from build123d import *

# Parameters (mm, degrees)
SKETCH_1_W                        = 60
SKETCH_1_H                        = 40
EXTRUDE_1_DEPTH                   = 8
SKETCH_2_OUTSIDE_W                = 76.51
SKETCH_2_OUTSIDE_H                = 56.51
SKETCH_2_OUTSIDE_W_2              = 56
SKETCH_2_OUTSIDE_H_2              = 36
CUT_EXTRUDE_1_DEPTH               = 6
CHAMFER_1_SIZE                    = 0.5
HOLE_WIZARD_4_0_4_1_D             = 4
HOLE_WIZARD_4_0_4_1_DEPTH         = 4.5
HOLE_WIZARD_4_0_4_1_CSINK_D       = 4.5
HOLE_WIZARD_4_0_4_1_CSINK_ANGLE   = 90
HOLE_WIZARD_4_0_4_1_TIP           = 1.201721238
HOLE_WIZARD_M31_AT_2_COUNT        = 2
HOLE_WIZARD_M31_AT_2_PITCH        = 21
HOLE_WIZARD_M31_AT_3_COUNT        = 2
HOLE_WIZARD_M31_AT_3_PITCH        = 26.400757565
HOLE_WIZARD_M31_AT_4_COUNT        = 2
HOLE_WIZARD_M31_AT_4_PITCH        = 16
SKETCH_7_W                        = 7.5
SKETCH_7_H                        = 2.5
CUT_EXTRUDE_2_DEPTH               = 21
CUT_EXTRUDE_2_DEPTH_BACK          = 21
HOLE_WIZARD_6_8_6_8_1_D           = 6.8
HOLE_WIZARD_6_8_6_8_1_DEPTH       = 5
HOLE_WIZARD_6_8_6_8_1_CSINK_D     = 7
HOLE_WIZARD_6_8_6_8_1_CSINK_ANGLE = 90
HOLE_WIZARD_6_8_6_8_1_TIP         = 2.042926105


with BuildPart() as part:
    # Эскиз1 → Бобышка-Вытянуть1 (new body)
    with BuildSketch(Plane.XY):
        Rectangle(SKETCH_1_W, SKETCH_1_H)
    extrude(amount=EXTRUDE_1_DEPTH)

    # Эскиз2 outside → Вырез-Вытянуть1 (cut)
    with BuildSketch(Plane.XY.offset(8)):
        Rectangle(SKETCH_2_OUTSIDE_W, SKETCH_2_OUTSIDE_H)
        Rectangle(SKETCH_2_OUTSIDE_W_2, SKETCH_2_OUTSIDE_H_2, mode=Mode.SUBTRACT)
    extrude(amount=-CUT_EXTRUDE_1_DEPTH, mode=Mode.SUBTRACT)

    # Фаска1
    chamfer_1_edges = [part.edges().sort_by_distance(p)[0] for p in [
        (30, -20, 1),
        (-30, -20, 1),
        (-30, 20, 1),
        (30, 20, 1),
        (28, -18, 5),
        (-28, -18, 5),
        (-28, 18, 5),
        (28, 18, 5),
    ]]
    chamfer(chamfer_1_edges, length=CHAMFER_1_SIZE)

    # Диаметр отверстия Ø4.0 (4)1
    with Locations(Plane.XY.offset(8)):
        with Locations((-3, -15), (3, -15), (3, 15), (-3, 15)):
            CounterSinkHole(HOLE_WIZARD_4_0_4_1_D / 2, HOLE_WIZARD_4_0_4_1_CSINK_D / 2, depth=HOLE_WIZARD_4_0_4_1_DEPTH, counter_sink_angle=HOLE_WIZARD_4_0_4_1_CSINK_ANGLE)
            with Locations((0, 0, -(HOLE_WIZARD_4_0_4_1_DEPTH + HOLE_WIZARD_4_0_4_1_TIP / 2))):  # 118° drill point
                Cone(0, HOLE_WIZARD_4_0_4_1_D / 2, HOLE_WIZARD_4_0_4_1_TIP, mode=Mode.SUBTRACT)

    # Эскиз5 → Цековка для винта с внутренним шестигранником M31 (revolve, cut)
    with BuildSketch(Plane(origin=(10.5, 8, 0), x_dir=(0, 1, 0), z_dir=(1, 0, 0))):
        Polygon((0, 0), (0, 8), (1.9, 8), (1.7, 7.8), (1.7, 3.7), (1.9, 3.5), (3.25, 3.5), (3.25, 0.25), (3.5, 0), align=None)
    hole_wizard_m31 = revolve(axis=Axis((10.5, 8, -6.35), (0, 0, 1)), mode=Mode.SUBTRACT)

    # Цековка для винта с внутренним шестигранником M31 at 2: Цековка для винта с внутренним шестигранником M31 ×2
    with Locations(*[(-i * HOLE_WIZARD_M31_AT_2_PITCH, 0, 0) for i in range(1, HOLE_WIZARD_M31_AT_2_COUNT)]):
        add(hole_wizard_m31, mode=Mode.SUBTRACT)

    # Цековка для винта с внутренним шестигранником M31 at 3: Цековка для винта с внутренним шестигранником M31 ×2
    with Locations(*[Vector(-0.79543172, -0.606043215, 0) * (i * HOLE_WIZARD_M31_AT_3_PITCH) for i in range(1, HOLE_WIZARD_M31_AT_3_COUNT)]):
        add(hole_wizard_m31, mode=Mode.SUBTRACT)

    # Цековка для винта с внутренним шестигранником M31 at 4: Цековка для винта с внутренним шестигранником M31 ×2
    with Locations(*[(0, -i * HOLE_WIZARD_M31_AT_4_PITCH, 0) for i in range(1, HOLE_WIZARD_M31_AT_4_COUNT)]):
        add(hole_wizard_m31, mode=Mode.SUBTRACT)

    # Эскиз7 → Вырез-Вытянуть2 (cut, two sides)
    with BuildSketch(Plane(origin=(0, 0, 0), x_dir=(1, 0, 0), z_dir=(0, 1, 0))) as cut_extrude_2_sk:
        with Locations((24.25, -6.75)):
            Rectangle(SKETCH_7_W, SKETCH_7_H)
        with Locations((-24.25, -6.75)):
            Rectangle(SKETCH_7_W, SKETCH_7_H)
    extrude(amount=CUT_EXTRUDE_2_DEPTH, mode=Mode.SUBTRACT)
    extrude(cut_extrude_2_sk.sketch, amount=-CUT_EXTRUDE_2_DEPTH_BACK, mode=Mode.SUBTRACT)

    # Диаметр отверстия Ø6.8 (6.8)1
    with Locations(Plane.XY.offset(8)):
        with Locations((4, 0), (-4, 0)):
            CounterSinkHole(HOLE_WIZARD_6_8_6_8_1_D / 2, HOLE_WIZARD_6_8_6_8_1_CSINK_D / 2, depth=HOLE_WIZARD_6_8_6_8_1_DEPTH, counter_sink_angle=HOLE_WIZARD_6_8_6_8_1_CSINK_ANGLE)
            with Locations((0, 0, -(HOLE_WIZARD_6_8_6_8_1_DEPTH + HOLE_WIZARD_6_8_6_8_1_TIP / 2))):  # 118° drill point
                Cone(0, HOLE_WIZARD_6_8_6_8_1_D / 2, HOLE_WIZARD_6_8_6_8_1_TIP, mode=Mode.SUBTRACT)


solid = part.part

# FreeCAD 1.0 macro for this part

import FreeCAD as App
import Part
import Sketcher
from FreeCAD import Vector
Q = App.Units.Quantity


def edges_at(feature, points):
    """Names of the edges that pass closest to the given points."""
    edges = feature.Shape.Edges
    near = lambda p: min(range(len(edges)), key=lambda i: edges[i].distToShape(Part.Vertex(*p))[0])
    return sorted({f"Edge{near(p) + 1}" for p in points})

doc = App.newDocument("Part")
body = doc.addObject("PartDesign::Body", "Body")

# Sketch on XY plane
sketch1 = body.newObject("Sketcher::SketchObject", "Sketch")
sketch1.AttachmentSupport = (doc.getObject("XY_Plane"), [""])
sketch1.MapMode = "FlatFace"
sketch1.addGeometry(Part.LineSegment(Vector(-30, 20, 0), Vector(-30, -20, 0)), False)
sketch1.addGeometry(Part.LineSegment(Vector(-30, -20, 0), Vector(30, -20, 0)), False)
sketch1.addGeometry(Part.LineSegment(Vector(30, -20, 0), Vector(30, 20, 0)), False)
sketch1.addGeometry(Part.LineSegment(Vector(30, 20, 0), Vector(-30, 20, 0)), False)
sketch1.addConstraint(Sketcher.Constraint("Coincident", 0, 2, 1, 1))
sketch1.addConstraint(Sketcher.Constraint("Coincident", 1, 2, 2, 1))
sketch1.addConstraint(Sketcher.Constraint("Coincident", 2, 2, 3, 1))
sketch1.addConstraint(Sketcher.Constraint("Coincident", 3, 2, 0, 1))
sketch1.addConstraint(Sketcher.Constraint("Vertical", 0))
sketch1.addConstraint(Sketcher.Constraint("Horizontal", 1))
sketch1.addConstraint(Sketcher.Constraint("Vertical", 2))
sketch1.addConstraint(Sketcher.Constraint("Horizontal", 3))
sketch1.addConstraint(Sketcher.Constraint("Symmetric", 0, 2, 2, 2, -1, 1))
sketch1.addConstraint(Sketcher.Constraint("DistanceX", 1, 1, 1, 2, Q("60 mm")))
sketch1.addConstraint(Sketcher.Constraint("DistanceY", 0, 2, 0, 1, Q("40 mm")))
pad1 = body.newObject("PartDesign::Pad", "Pad")
pad1.Profile = sketch1
pad1.Length = 8

# Sketch on XY plane
sketch2 = body.newObject("Sketcher::SketchObject", "Sketch001")
sketch2.AttachmentSupport = (doc.getObject("XY_Plane"), [""])
sketch2.MapMode = "FlatFace"
sketch2.AttachmentOffset = App.Placement(Vector(0, 0, 8), App.Rotation())
sketch2.addGeometry(Part.LineSegment(Vector(-38.255, 28.255, 0), Vector(-38.255, -28.255, 0)), False)
sketch2.addGeometry(Part.LineSegment(Vector(-38.255, -28.255, 0), Vector(38.255, -28.255, 0)), False)
sketch2.addGeometry(Part.LineSegment(Vector(38.255, -28.255, 0), Vector(38.255, 28.255, 0)), False)
sketch2.addGeometry(Part.LineSegment(Vector(38.255, 28.255, 0), Vector(-38.255, 28.255, 0)), False)
sketch2.addGeometry(Part.LineSegment(Vector(28, -18, 0), Vector(-28, -18, 0)), False)
sketch2.addGeometry(Part.LineSegment(Vector(-28, -18, 0), Vector(-28, 18, 0)), False)
sketch2.addGeometry(Part.LineSegment(Vector(-28, 18, 0), Vector(28, 18, 0)), False)
sketch2.addGeometry(Part.LineSegment(Vector(28, 18, 0), Vector(28, -18, 0)), False)
sketch2.addConstraint(Sketcher.Constraint("Coincident", 0, 2, 1, 1))
sketch2.addConstraint(Sketcher.Constraint("Coincident", 1, 2, 2, 1))
sketch2.addConstraint(Sketcher.Constraint("Coincident", 2, 2, 3, 1))
sketch2.addConstraint(Sketcher.Constraint("Coincident", 3, 2, 0, 1))
sketch2.addConstraint(Sketcher.Constraint("Coincident", 4, 2, 5, 1))
sketch2.addConstraint(Sketcher.Constraint("Coincident", 5, 2, 6, 1))
sketch2.addConstraint(Sketcher.Constraint("Coincident", 6, 2, 7, 1))
sketch2.addConstraint(Sketcher.Constraint("Coincident", 7, 2, 4, 1))
sketch2.addConstraint(Sketcher.Constraint("Vertical", 0))
sketch2.addConstraint(Sketcher.Constraint("Horizontal", 1))
sketch2.addConstraint(Sketcher.Constraint("Vertical", 2))
sketch2.addConstraint(Sketcher.Constraint("Horizontal", 3))
sketch2.addConstraint(Sketcher.Constraint("Horizontal", 4))
sketch2.addConstraint(Sketcher.Constraint("Vertical", 5))
sketch2.addConstraint(Sketcher.Constraint("Horizontal", 6))
sketch2.addConstraint(Sketcher.Constraint("Vertical", 7))
sketch2.addConstraint(Sketcher.Constraint("Symmetric", 0, 2, 2, 2, -1, 1))
sketch2.addConstraint(Sketcher.Constraint("Symmetric", 4, 2, 6, 2, -1, 1))
sketch2.addConstraint(Sketcher.Constraint("DistanceX", 4, 2, 4, 1, Q("56 mm")))
sketch2.addConstraint(Sketcher.Constraint("DistanceY", 5, 1, 5, 2, Q("36 mm")))
sketch2.addConstraint(Sketcher.Constraint("DistanceX", 1, 1, 1, 2, Q("76.51 mm")))
sketch2.addConstraint(Sketcher.Constraint("DistanceY", 0, 2, 0, 1, Q("56.51 mm")))
pocket1 = body.newObject("PartDesign::Pocket", "Pocket")
pocket1.Profile = sketch2
pocket1.Length = 6
doc.recompute()

chamfer = body.newObject("PartDesign::Chamfer", "Chamfer")
chamfer.Base = (pocket1, edges_at(pocket1, [
    (30, -20, 1),
    (-30, -20, 1),
    (-30, 20, 1),
    (30, 20, 1),
    (28, -18, 5),
    (-28, -18, 5),
    (-28, 18, 5),
    (28, 18, 5),
]))
chamfer.Size = 0.5

# Sketch on XY plane
sketch3 = body.newObject("Sketcher::SketchObject", "Sketch002")
sketch3.AttachmentSupport = (doc.getObject("XY_Plane"), [""])
sketch3.MapMode = "FlatFace"
sketch3.AttachmentOffset = App.Placement(Vector(0, 0, 8), App.Rotation())
sketch3.addGeometry(Part.Circle(Vector(-3, -15, 0), Vector(0, 0, 1), 2), False)
sketch3.addGeometry(Part.Circle(Vector(3, -15, 0), Vector(0, 0, 1), 2), False)
sketch3.addGeometry(Part.Circle(Vector(3, 15, 0), Vector(0, 0, 1), 2), False)
sketch3.addGeometry(Part.Circle(Vector(-3, 15, 0), Vector(0, 0, 1), 2), False)
sketch3.addConstraint(Sketcher.Constraint("Equal", 0, 1))
sketch3.addConstraint(Sketcher.Constraint("Equal", 1, 2))
sketch3.addConstraint(Sketcher.Constraint("Equal", 2, 3))
sketch3.addConstraint(Sketcher.Constraint("Symmetric", 0, 3, 2, 3, -1, 1))
sketch3.addConstraint(Sketcher.Constraint("Symmetric", 1, 3, 3, 3, -1, 1))
sketch3.addConstraint(Sketcher.Constraint("Symmetric", 0, 3, 1, 3, -2))
sketch3.addConstraint(Sketcher.Constraint("Diameter", 0, Q("4 mm")))
sketch3.addConstraint(Sketcher.Constraint("DistanceX", 0, 3, -1, 1, Q("3 mm")))
sketch3.addConstraint(Sketcher.Constraint("DistanceY", 0, 3, -1, 1, Q("15 mm")))
doc.recompute()
hole = body.newObject("PartDesign::Hole", "Hole")
hole.Profile = sketch3
hole.ThreadType = "None"
hole.Diameter = 4
hole.DepthType = "Dimension"
hole.Depth = 4.5
hole.DrillPoint = "Angled"
hole.DrillPointAngle = 118
hole.HoleCutType = "Countersink"
hole.HoleCutDiameter = 4.5
hole.HoleCutCountersinkAngle = 90

# Sketch on YZ plane
sketch4 = body.newObject("Sketcher::SketchObject", "Sketch003")
sketch4.AttachmentSupport = (doc.getObject("YZ_Plane"), [""])
sketch4.MapMode = "FlatFace"
sketch4.AttachmentOffset = App.Placement(Vector(0, 0, 10.5), App.Rotation())
sketch4.addGeometry(Part.LineSegment(Vector(8, 8, 0), Vector(8, 0, 0)), False)
sketch4.addGeometry(Part.LineSegment(Vector(8, 0, 0), Vector(11.5, 0, 0)), False)
sketch4.addGeometry(Part.LineSegment(Vector(11.5, 0, 0), Vector(11.25, 0.25, 0)), False)
sketch4.addGeometry(Part.LineSegment(Vector(11.25, 0.25, 0), Vector(11.25, 3.5, 0)), False)
sketch4.addGeometry(Part.LineSegment(Vector(11.25, 3.5, 0), Vector(9.9, 3.5, 0)), False)
sketch4.addGeometry(Part.LineSegment(Vector(9.9, 3.5, 0), Vector(9.7, 3.7, 0)), False)
sketch4.addGeometry(Part.LineSegment(Vector(9.7, 3.7, 0), Vector(9.7, 7.8, 0)), False)
sketch4.addGeometry(Part.LineSegment(Vector(9.7, 7.8, 0), Vector(9.9, 8, 0)), False)
sketch4.addGeometry(Part.LineSegment(Vector(9.9, 8, 0), Vector(8, 8, 0)), False)
sketch4.addGeometry(Part.LineSegment(Vector(8, 0, 0), Vector(8, 8, 0)), True)  # axis
sketch4.addConstraint(Sketcher.Constraint("Coincident", 0, 2, 1, 1))
sketch4.addConstraint(Sketcher.Constraint("Coincident", 1, 2, 2, 1))
sketch4.addConstraint(Sketcher.Constraint("Coincident", 2, 2, 3, 1))
sketch4.addConstraint(Sketcher.Constraint("Coincident", 3, 2, 4, 1))
sketch4.addConstraint(Sketcher.Constraint("Coincident", 4, 2, 5, 1))
sketch4.addConstraint(Sketcher.Constraint("Coincident", 5, 2, 6, 1))
sketch4.addConstraint(Sketcher.Constraint("Coincident", 6, 2, 7, 1))
sketch4.addConstraint(Sketcher.Constraint("Coincident", 7, 2, 8, 1))
sketch4.addConstraint(Sketcher.Constraint("Coincident", 8, 2, 0, 1))
sketch4.addConstraint(Sketcher.Constraint("Vertical", 0))
sketch4.addConstraint(Sketcher.Constraint("Horizontal", 1))
sketch4.addConstraint(Sketcher.Constraint("Vertical", 3))
sketch4.addConstraint(Sketcher.Constraint("Horizontal", 4))
sketch4.addConstraint(Sketcher.Constraint("Vertical", 6))
sketch4.addConstraint(Sketcher.Constraint("Horizontal", 8))
sketch4.addConstraint(Sketcher.Constraint("Vertical", 9))
sketch4.addConstraint(Sketcher.Constraint("Coincident", 9, 1, 0, 2))
sketch4.addConstraint(Sketcher.Constraint("PointOnObject", 0, 2, -1))
sketch4.addConstraint(Sketcher.Constraint("Parallel", 2, 5))
sketch4.addConstraint(Sketcher.Constraint("Perpendicular", 5, 7))
sketch4.addConstraint(Sketcher.Constraint("Horizontal", 7, 2, 9, 2))
sketch4.addConstraint(Sketcher.Constraint("Vertical", 4, 2, 7, 2))
sketch4.addConstraint(Sketcher.Constraint("Equal", 5, 7))
sketch4.addConstraint(Sketcher.Constraint("DistanceY", 0, 2, 0, 1, Q("8 mm")))
sketch4.addConstraint(Sketcher.Constraint("DistanceX", 1, 1, 1, 2, Q("3.5 mm")))
sketch4.addConstraint(Sketcher.Constraint("DistanceX", 8, 2, 8, 1, Q("1.9 mm")))
sketch4.addConstraint(Sketcher.Constraint("DistanceY", 6, 1, 6, 2, Q("4.1 mm")))
sketch4.addConstraint(Sketcher.Constraint("DistanceX", -1, 1, 0, 2, Q("8 mm")))
sketch4.addConstraint(Sketcher.Constraint("DistanceX", 4, 2, 4, 1, Q("1.35 mm")))
sketch4.addConstraint(Sketcher.Constraint("DistanceY", 3, 1, 3, 2, Q("3.25 mm")))
groove = body.newObject("PartDesign::Groove", "Groove")
groove.Profile = sketch4
groove.ReferenceAxis = (sketch4, ["Axis0"])
groove.Angle = 360
doc.recompute()

linearpattern = body.newObject("PartDesign::LinearPattern", "LinearPattern")
linearpattern.Originals = [groove]
linearpattern.Direction = (doc.getObject("X_Axis"), [""])
linearpattern.Mode = "offset"
linearpattern.Offset = 21
linearpattern.Occurrences = 2
linearpattern.Reversed = True
body.Tip = linearpattern
doc.recompute()

datumline = body.newObject("PartDesign::Line", "DatumLine")
datumline.Placement = App.Placement(Vector(0, 0, 0), App.Rotation(Vector(0, 0, 1), Vector(-0.79543172, -0.606043215, 0)))
linearpattern2 = body.newObject("PartDesign::LinearPattern", "LinearPattern001")
linearpattern2.Originals = [groove]
linearpattern2.Direction = (datumline, [""])
linearpattern2.Mode = "offset"
linearpattern2.Offset = 26.400758
linearpattern2.Occurrences = 2
body.Tip = linearpattern2
doc.recompute()

linearpattern3 = body.newObject("PartDesign::LinearPattern", "LinearPattern002")
linearpattern3.Originals = [groove]
linearpattern3.Direction = (doc.getObject("Y_Axis"), [""])
linearpattern3.Mode = "offset"
linearpattern3.Offset = 16
linearpattern3.Occurrences = 2
linearpattern3.Reversed = True
body.Tip = linearpattern3

# Sketch on XZ plane
sketch5 = body.newObject("Sketcher::SketchObject", "Sketch004")
sketch5.AttachmentSupport = (doc.getObject("XZ_Plane"), [""])
sketch5.MapMode = "FlatFace"
sketch5.addGeometry(Part.LineSegment(Vector(20.5, 5.5, 0), Vector(20.5, 8, 0)), False)
sketch5.addGeometry(Part.LineSegment(Vector(20.5, 8, 0), Vector(28, 8, 0)), False)
sketch5.addGeometry(Part.LineSegment(Vector(28, 8, 0), Vector(28, 5.5, 0)), False)
sketch5.addGeometry(Part.LineSegment(Vector(28, 5.5, 0), Vector(20.5, 5.5, 0)), False)
sketch5.addGeometry(Part.LineSegment(Vector(-28, 5.5, 0), Vector(-28, 8, 0)), False)
sketch5.addGeometry(Part.LineSegment(Vector(-28, 8, 0), Vector(-20.5, 8, 0)), False)
sketch5.addGeometry(Part.LineSegment(Vector(-20.5, 8, 0), Vector(-20.5, 5.5, 0)), False)
sketch5.addGeometry(Part.LineSegment(Vector(-20.5, 5.5, 0), Vector(-28, 5.5, 0)), False)
sketch5.addConstraint(Sketcher.Constraint("Coincident", 0, 2, 1, 1))
sketch5.addConstraint(Sketcher.Constraint("Coincident", 1, 2, 2, 1))
sketch5.addConstraint(Sketcher.Constraint("Coincident", 2, 2, 3, 1))
sketch5.addConstraint(Sketcher.Constraint("Coincident", 3, 2, 0, 1))
sketch5.addConstraint(Sketcher.Constraint("Coincident", 4, 2, 5, 1))
sketch5.addConstraint(Sketcher.Constraint("Coincident", 5, 2, 6, 1))
sketch5.addConstraint(Sketcher.Constraint("Coincident", 6, 2, 7, 1))
sketch5.addConstraint(Sketcher.Constraint("Coincident", 7, 2, 4, 1))
sketch5.addConstraint(Sketcher.Constraint("Vertical", 0))
sketch5.addConstraint(Sketcher.Constraint("Horizontal", 1))
sketch5.addConstraint(Sketcher.Constraint("Vertical", 2))
sketch5.addConstraint(Sketcher.Constraint("Horizontal", 3))
sketch5.addConstraint(Sketcher.Constraint("Vertical", 4))
sketch5.addConstraint(Sketcher.Constraint("Horizontal", 5))
sketch5.addConstraint(Sketcher.Constraint("Vertical", 6))
sketch5.addConstraint(Sketcher.Constraint("Horizontal", 7))
sketch5.addConstraint(Sketcher.Constraint("Symmetric", 1, 2, 4, 2, -2))
sketch5.addConstraint(Sketcher.Constraint("Symmetric", 3, 2, 6, 2, -2))
sketch5.addConstraint(Sketcher.Constraint("DistanceX", 1, 1, 1, 2, Q("7.5 mm")))
sketch5.addConstraint(Sketcher.Constraint("DistanceY", 0, 1, 0, 2, Q("2.5 mm")))
sketch5.addConstraint(Sketcher.Constraint("DistanceY", -1, 1, 0, 2, Q("8 mm")))
sketch5.addConstraint(Sketcher.Constraint("DistanceX", -1, 1, 1, 2, Q("28 mm")))
pocket2 = body.newObject("PartDesign::Pocket", "Pocket001")
pocket2.Profile = sketch5
pocket2.Type = "ThroughAll"
pocket2.Midplane = True

# Sketch on XY plane
sketch6 = body.newObject("Sketcher::SketchObject", "Sketch005")
sketch6.AttachmentSupport = (doc.getObject("XY_Plane"), [""])
sketch6.MapMode = "FlatFace"
sketch6.AttachmentOffset = App.Placement(Vector(0, 0, 8), App.Rotation())
sketch6.addGeometry(Part.Circle(Vector(4, 0, 0), Vector(0, 0, 1), 3.4), False)
sketch6.addGeometry(Part.Circle(Vector(-4, 0, 0), Vector(0, 0, 1), 3.4), False)
sketch6.addConstraint(Sketcher.Constraint("Equal", 0, 1))
sketch6.addConstraint(Sketcher.Constraint("Symmetric", 0, 3, 1, 3, -1, 1))
sketch6.addConstraint(Sketcher.Constraint("PointOnObject", 0, 3, -1))
sketch6.addConstraint(Sketcher.Constraint("Diameter", 0, Q("6.8 mm")))
sketch6.addConstraint(Sketcher.Constraint("DistanceX", -1, 1, 0, 3, Q("4 mm")))
doc.recompute()
hole2 = body.newObject("PartDesign::Hole", "Hole001")
hole2.Profile = sketch6
hole2.ThreadType = "None"
hole2.Diameter = 6.8
hole2.DepthType = "Dimension"
hole2.Depth = 5
hole2.DrillPoint = "Angled"
hole2.DrillPointAngle = 118
hole2.HoleCutType = "Countersink"
hole2.HoleCutDiameter = 7
hole2.HoleCutCountersinkAngle = 90

doc.recompute()
